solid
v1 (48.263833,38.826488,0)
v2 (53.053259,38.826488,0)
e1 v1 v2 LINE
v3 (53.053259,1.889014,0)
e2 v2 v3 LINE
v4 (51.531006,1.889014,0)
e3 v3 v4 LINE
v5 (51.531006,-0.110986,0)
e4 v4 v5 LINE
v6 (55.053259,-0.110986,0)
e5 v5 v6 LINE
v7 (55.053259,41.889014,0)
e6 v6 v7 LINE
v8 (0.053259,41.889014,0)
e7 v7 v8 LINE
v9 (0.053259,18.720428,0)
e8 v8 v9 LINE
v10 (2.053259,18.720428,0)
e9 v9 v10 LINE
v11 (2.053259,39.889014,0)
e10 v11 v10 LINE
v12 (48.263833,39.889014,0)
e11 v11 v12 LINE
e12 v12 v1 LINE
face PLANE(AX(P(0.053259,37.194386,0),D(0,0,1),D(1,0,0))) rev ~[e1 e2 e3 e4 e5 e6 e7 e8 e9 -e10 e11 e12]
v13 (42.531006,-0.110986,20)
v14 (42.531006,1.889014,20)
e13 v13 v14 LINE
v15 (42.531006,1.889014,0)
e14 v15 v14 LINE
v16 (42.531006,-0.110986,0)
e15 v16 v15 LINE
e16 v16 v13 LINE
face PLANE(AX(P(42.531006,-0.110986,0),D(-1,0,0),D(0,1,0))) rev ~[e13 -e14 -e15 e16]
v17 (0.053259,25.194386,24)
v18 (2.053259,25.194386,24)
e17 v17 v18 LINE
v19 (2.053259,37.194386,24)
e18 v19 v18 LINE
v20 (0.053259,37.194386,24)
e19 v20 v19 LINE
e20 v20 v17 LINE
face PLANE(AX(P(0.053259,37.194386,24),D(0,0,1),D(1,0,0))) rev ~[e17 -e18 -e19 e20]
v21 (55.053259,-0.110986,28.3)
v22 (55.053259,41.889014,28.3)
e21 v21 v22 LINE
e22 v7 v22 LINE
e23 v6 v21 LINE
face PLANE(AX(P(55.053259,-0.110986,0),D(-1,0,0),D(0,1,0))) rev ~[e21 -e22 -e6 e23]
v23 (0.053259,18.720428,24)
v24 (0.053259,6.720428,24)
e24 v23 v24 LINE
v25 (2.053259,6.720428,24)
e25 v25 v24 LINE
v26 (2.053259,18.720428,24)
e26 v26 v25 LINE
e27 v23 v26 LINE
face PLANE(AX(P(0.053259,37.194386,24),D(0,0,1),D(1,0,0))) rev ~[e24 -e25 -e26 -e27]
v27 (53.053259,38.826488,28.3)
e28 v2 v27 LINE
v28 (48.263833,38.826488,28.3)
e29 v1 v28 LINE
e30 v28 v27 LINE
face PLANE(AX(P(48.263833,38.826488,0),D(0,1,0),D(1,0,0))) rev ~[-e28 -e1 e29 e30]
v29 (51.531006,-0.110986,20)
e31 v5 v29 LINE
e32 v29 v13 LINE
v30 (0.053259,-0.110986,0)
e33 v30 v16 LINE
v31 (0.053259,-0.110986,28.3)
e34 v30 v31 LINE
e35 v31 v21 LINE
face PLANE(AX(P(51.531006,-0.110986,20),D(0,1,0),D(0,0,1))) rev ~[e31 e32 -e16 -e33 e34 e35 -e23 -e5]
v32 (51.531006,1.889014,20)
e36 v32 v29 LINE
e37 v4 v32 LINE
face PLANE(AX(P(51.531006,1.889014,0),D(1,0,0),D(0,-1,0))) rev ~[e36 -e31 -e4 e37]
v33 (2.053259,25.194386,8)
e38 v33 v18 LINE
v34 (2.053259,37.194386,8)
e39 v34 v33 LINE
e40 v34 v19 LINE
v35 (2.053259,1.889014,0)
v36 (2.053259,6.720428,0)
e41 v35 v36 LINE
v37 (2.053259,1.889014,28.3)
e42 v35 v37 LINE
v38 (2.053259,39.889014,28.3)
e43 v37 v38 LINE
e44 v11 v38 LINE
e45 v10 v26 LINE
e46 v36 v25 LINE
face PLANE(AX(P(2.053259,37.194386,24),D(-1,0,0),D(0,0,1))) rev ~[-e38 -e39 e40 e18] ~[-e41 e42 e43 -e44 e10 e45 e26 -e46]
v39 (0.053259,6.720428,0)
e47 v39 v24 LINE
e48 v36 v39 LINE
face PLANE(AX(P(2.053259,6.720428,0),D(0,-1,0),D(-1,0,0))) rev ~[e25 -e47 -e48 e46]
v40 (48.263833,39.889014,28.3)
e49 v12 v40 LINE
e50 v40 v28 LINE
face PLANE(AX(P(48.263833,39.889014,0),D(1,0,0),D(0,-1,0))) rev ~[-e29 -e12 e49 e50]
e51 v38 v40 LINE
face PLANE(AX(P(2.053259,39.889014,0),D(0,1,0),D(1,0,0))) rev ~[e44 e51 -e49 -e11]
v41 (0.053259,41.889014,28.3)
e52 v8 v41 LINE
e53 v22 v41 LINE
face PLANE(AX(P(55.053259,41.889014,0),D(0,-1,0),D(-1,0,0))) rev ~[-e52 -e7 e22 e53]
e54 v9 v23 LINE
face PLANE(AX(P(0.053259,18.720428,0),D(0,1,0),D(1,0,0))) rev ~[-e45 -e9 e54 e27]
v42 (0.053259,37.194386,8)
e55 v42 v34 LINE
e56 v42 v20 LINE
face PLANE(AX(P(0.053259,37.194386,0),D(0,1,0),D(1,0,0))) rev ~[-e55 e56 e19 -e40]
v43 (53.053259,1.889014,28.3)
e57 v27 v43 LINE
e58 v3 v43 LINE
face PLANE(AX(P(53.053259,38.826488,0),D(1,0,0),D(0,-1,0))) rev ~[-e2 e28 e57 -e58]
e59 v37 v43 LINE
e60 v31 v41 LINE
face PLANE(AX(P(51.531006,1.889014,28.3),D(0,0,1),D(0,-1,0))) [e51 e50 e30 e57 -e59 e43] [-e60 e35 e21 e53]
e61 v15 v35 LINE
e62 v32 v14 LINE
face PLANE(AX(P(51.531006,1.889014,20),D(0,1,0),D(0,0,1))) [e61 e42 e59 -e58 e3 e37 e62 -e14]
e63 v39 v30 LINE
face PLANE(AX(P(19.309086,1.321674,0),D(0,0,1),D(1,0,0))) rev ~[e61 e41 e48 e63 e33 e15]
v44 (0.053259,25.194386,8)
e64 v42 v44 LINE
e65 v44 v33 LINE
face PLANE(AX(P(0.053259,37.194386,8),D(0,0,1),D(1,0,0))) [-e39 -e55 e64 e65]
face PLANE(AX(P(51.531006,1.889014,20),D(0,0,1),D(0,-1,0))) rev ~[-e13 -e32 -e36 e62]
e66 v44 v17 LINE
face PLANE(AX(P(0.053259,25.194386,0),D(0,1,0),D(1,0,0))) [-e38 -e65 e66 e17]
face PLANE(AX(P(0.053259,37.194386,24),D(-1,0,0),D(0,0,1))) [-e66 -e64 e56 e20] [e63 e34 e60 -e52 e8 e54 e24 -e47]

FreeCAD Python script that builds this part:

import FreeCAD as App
import Part
import Sketcher

V = App.Vector


def add_polygon(sketch, points):
    """Adds a closed chain of lines whose ends are joined by coincident constraints."""
    first, n = sketch.GeometryCount, len(points)
    for a, b in zip(points, points[1:] + points[:1]):
        sketch.addGeometry(Part.LineSegment(App.Vector(*a, 0), App.Vector(*b, 0)), False)
    for i in range(n):
        sketch.addConstraint(Sketcher.Constraint("Coincident", first + i, 2, first + (i + 1) % n, 1))

doc = App.newDocument("Part")
params = doc.addObject("Spreadsheet::Sheet", "Params")
for row, (alias, value) in enumerate([
    ("sketch1_width", "55 mm"),
    ("sketch1_width2", "2 mm"),
    ("sketch1_height", "42 mm"),
    ("pad1_length", "28.3 mm"),
    ("sketch2_width", "2 mm"),
    ("sketch2_height", "8 mm"),
    ("pad2_length", "12 mm"),
    ("sketch3_width", "2 mm"),
    ("sketch3_height", "4.3 mm"),
    ("pad3_length", "35 mm"),
    ("sketch4_width", "2 mm"),
    ("sketch4_height", "8.3 mm"),
    ("pad4_length", "25 mm"),
], start=1):
    params.set(f"A{row}", alias)
    params.set(f"B{row}", "=" + value)
    params.setAlias(f"B{row}", alias)

body = doc.addObject("PartDesign::Body", "Body")
body.AllowCompound = True

sketch1 = doc.addObject("Sketcher::SketchObject", "Sketch")
body.addObject(sketch1)
sketch1.AttachmentSupport = (doc.XY_Plane, [""])
sketch1.MapMode = "FlatFace"
add_polygon(sketch1, [(55.053259, 41.889014), (0.053259, 41.889014), (0.053259, 37.194386), (2.053259, 37.194386), (2.053259, 39.889014), (48.263833, 39.889014), (48.263833, 38.826488), (53.053259, 38.826488), (53.053259, 1.889014), (51.531006, 1.889014), (51.531006, -0.110986), (55.053259, -0.110986)])
add_polygon(sketch1, [(0.053259, 6.720428), (0.053259, -0.110986), (42.531006, -0.110986), (42.531006, 1.889014), (2.053259, 1.889014), (2.053259, 6.720428)])
add_polygon(sketch1, [(0.053259, 25.194386), (0.053259, 18.720428), (2.053259, 18.720428), (2.053259, 25.194386)])
sketch1.addConstraint([
    Sketcher.Constraint("Horizontal", 0),
    Sketcher.Constraint("Vertical", 1),
    Sketcher.Constraint("Horizontal", 2),
    Sketcher.Constraint("Vertical", 3),
    Sketcher.Constraint("Horizontal", 4),
    Sketcher.Constraint("Vertical", 5),
    Sketcher.Constraint("Horizontal", 6),
    Sketcher.Constraint("Vertical", 7),
    Sketcher.Constraint("Horizontal", 8),
    Sketcher.Constraint("Vertical", 9),
    Sketcher.Constraint("Horizontal", 10),
    Sketcher.Constraint("Vertical", 11),
    Sketcher.Constraint("Vertical", 12),
    Sketcher.Constraint("Horizontal", 13),
    Sketcher.Constraint("Vertical", 14),
    Sketcher.Constraint("Horizontal", 15),
    Sketcher.Constraint("Vertical", 16),
    Sketcher.Constraint("Horizontal", 17),
    Sketcher.Constraint("Vertical", 18),
    Sketcher.Constraint("Horizontal", 19),
    Sketcher.Constraint("Vertical", 20),
    Sketcher.Constraint("Horizontal", 21),
    Sketcher.Constraint("Horizontal", 10, 2, 12, 2),
    Sketcher.Constraint("Horizontal", 8, 2, 14, 2),
    Sketcher.Constraint("Vertical", 1, 2, 12, 2),
    Sketcher.Constraint("Vertical", 3, 2, 15, 2),
    Sketcher.Constraint("Vertical", 17, 2, 18, 2),
    Sketcher.Constraint("Vertical", 16, 2, 19, 2),
    Sketcher.Constraint("Equal", 21, 9),
    Sketcher.Constraint("DistanceX", 0, 2, 0, 1, 55.0),
    Sketcher.Constraint("DistanceX", 2, 1, 2, 2, 2.0),
    Sketcher.Constraint("DistanceY", 11, 1, 11, 2, 42.0),
    Sketcher.Constraint("DistanceY", 3, 2, 0, 2, 2.0),
    Sketcher.Constraint("DistanceX", 3, 2, 6, 2, 51.0),
    Sketcher.Constraint("DistanceX", 13, 2, 9, 2, 9.0),
    Sketcher.Constraint("DistanceY", 17, 2, 18, 2, 12.0),
    Sketcher.Constraint("DistanceY", 20, 2, 2, 2, 12.0),
    Sketcher.Constraint("DistanceY", 1, 2, 1, 1, 4.694628),
    Sketcher.Constraint("DistanceY", 18, 2, 18, 1, 6.473958),
    Sketcher.Constraint("DistanceY", 2, 2, 5, 2, 1.632102),
    Sketcher.Constraint("DistanceX", 4, 1, 4, 2, 46.210574),
    Sketcher.Constraint("DistanceX", 8, 2, 8, 1, 1.522253),
    Sketcher.Constraint("DistanceX", -1, 1, 0, 2, 0.053259),
    Sketcher.Constraint("DistanceY", -1, 1, 0, 2, 41.889014),
])
sketch1.setExpression("Constraints[51]", "Params.sketch1_width")
sketch1.setExpression("Constraints[52]", "Params.sketch1_width2")
sketch1.setExpression("Constraints[53]", "Params.sketch1_height")
pad1 = doc.addObject("PartDesign::Pad", "Pad")
body.addObject(pad1)
pad1.Profile = sketch1
pad1.setExpression("Length", "Params.pad1_length")

sketch2 = doc.addObject("Sketcher::SketchObject", "Sketch001")
body.addObject(sketch2)
sketch2.AttachmentSupport = (doc.XZ_Plane, [""])
sketch2.MapMode = "FlatFace"
sketch2.AttachmentOffset = App.Placement(V(0, 0, -37.194386), App.Rotation())
add_polygon(sketch2, [(0.053259, 8), (0.053259, 0), (2.053259, 0), (2.053259, 8)])
sketch2.addConstraint([
    Sketcher.Constraint("Vertical", 0),
    Sketcher.Constraint("Horizontal", 1),
    Sketcher.Constraint("Vertical", 2),
    Sketcher.Constraint("Horizontal", 3),
    Sketcher.Constraint("PointOnObject", 0, 2, -1),
    Sketcher.Constraint("DistanceX", 1, 1, 1, 2, 2.0),
    Sketcher.Constraint("DistanceY", 0, 2, 0, 1, 8.0),
    Sketcher.Constraint("DistanceX", -1, 1, 0, 2, 0.053259),
])
sketch2.setExpression("Constraints[9]", "Params.sketch2_width")
sketch2.setExpression("Constraints[10]", "Params.sketch2_height")
pad2 = doc.addObject("PartDesign::Pad", "Pad001")
body.addObject(pad2)
pad2.Profile = sketch2
pad2.setExpression("Length", "Params.pad2_length")

sketch3 = doc.addObject("Sketcher::SketchObject", "Sketch002")
body.addObject(sketch3)
sketch3.AttachmentSupport = (doc.XZ_Plane, [""])
sketch3.MapMode = "FlatFace"
sketch3.AttachmentOffset = App.Placement(V(0, 0, -37.194386), App.Rotation())
add_polygon(sketch3, [(0.053259, 28.3), (0.053259, 24), (2.053259, 24), (2.053259, 28.3)])
sketch3.addConstraint([
    Sketcher.Constraint("Vertical", 0),
    Sketcher.Constraint("Horizontal", 1),
    Sketcher.Constraint("Vertical", 2),
    Sketcher.Constraint("Horizontal", 3),
    Sketcher.Constraint("DistanceX", 1, 1, 1, 2, 2.0),
    Sketcher.Constraint("DistanceY", 0, 2, 0, 1, 4.3),
    Sketcher.Constraint("DistanceY", -1, 1, 0, 2, 24.0),
    Sketcher.Constraint("DistanceX", -1, 1, 0, 2, 0.053259),
])
sketch3.setExpression("Constraints[8]", "Params.sketch3_width")
sketch3.setExpression("Constraints[9]", "Params.sketch3_height")
pad3 = doc.addObject("PartDesign::Pad", "Pad002")
body.addObject(pad3)
pad3.Profile = sketch3
pad3.setExpression("Length", "Params.pad3_length")

sketch4 = doc.addObject("Sketcher::SketchObject", "Sketch003")
body.addObject(sketch4)
sketch4.AttachmentSupport = (doc.YZ_Plane, [""])
sketch4.MapMode = "FlatFace"
sketch4.AttachmentOffset = App.Placement(V(0, 0, 51.531006), App.Rotation())
add_polygon(sketch4, [(1.889014, 28.3), (1.889014, 20), (-0.110986, 20), (-0.110986, 28.3)])
sketch4.addConstraint([
    Sketcher.Constraint("Vertical", 0),
    Sketcher.Constraint("Horizontal", 1),
    Sketcher.Constraint("Vertical", 2),
    Sketcher.Constraint("Horizontal", 3),
    Sketcher.Constraint("DistanceX", 1, 2, 1, 1, 2.0),
    Sketcher.Constraint("DistanceY", 0, 2, 0, 1, 8.3),
    Sketcher.Constraint("DistanceY", -1, 1, 0, 2, 20.0),
    Sketcher.Constraint("DistanceX", -1, 1, 0, 2, 1.889014),
])
sketch4.setExpression("Constraints[8]", "Params.sketch4_width")
sketch4.setExpression("Constraints[9]", "Params.sketch4_height")
pad4 = doc.addObject("PartDesign::Pad", "Pad003")
body.addObject(pad4)
pad4.Profile = sketch4
pad4.setExpression("Length", "Params.pad4_length")
pad4.Reversed = True

doc.recompute()
